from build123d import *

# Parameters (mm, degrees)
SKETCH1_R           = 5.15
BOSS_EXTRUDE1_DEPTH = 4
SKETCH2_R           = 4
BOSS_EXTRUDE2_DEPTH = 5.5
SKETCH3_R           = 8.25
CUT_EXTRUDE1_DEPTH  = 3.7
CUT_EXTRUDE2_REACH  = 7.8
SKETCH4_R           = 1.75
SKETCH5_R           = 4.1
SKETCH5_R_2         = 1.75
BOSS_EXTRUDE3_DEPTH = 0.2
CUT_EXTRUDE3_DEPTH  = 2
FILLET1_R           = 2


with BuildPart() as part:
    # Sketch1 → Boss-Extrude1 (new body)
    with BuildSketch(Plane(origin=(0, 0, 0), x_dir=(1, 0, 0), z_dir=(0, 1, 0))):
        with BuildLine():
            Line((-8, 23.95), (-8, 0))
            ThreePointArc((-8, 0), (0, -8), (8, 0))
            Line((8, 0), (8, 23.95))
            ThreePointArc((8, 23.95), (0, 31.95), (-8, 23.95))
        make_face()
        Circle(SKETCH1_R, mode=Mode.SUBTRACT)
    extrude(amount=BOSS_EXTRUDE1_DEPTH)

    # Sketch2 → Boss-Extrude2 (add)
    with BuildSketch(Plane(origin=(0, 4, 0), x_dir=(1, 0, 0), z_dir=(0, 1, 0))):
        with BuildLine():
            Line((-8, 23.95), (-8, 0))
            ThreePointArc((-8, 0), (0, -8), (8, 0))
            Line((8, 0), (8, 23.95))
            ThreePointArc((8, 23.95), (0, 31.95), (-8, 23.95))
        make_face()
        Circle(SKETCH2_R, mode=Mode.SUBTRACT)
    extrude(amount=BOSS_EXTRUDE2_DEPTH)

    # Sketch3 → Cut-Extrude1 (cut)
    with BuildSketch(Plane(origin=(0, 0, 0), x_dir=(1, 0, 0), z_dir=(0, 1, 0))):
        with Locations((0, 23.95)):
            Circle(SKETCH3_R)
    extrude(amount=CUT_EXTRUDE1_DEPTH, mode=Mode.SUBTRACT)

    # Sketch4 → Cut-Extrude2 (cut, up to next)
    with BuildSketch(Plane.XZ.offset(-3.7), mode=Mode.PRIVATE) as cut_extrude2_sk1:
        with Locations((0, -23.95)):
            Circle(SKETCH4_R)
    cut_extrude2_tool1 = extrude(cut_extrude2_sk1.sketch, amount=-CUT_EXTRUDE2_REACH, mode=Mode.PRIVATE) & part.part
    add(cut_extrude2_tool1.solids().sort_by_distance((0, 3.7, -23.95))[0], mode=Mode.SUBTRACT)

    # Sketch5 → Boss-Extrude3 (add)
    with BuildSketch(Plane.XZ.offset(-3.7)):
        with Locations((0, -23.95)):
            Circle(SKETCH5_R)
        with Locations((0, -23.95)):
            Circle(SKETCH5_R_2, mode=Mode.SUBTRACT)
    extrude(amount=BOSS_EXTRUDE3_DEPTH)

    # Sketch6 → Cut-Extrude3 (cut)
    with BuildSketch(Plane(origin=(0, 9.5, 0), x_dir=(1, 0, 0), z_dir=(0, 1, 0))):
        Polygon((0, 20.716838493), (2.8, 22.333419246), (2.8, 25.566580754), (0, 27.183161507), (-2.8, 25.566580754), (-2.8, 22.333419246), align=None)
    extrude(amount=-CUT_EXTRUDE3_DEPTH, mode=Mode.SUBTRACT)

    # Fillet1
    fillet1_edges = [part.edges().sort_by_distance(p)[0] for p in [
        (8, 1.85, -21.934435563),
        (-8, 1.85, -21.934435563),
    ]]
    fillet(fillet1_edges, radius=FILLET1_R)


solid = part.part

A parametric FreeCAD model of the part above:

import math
import FreeCAD as App
import Part
import Sketcher

V = App.Vector
Q = App.Units.Quantity


def edges_at(feature, points):
    """Names of the edges that pass closest to the given points."""
    edges = feature.Shape.Edges
    near = lambda p: min(range(len(edges)), key=lambda i: edges[i].distToShape(Part.Vertex(*p))[0])
    return sorted({f"Edge{near(p) + 1}" for p in points})


def add_polygon(sketch, points):
    """Adds a closed chain of lines whose ends are joined by coincident constraints."""
    first, n = sketch.GeometryCount, len(points)
    for a, b in zip(points, points[1:] + points[:1]):
        sketch.addGeometry(Part.LineSegment(App.Vector(*a, 0), App.Vector(*b, 0)), False)
    for i in range(n):
        sketch.addConstraint(Sketcher.Constraint("Coincident", first + i, 2, first + (i + 1) % n, 1))

doc = App.newDocument("Part")
body = doc.addObject("PartDesign::Body", "Body")

sketch1 = doc.addObject("Sketcher::SketchObject", "Sketch")
body.addObject(sketch1)
sketch1.AttachmentSupport = (doc.XZ_Plane, [""])
sketch1.MapMode = "FlatFace"
sketch1.addGeometry([
    Part.LineSegment(V(-8, -24, 0), V(-8, 0, 0)),
    Part.ArcOfCircle(Part.Circle(V(0, 0, 0), V(0, 0, 1), 8), math.radians(0), math.radians(180)),
    Part.LineSegment(V(8, 0, 0), V(8, -24, 0)),
    Part.ArcOfCircle(Part.Circle(V(0, -24, 0), V(0, 0, 1), 8), math.radians(180), math.radians(360)),
    Part.Circle(V(0, 0, 0), V(0, 0, 1), 5),
], False)
sketch1.addConstraint([
    Sketcher.Constraint("Tangent", 0, 2, 1, 2),
    Sketcher.Constraint("Tangent", 1, 1, 2, 1),
    Sketcher.Constraint("Tangent", 2, 2, 3, 2),
    Sketcher.Constraint("Tangent", 3, 1, 0, 1),
    Sketcher.Constraint("Vertical", 0),
    Sketcher.Constraint("Vertical", 2),
    Sketcher.Constraint("Coincident", 1, 3, -1, 1),
    Sketcher.Constraint("Coincident", 4, 3, -1, 1),
    Sketcher.Constraint("Radius", 1, 8.0),
    Sketcher.Constraint("Diameter", 4, 10.3),
    Sketcher.Constraint("DistanceY", 0, 1, 0, 2, 23.95),
])
pad1 = doc.addObject("PartDesign::Pad", "Pad")
body.addObject(pad1)
pad1.Profile = sketch1
pad1.Length = 4
pad1.Reversed = True

sketch2 = doc.addObject("Sketcher::SketchObject", "Sketch001")
body.addObject(sketch2)
sketch2.AttachmentSupport = (doc.XZ_Plane, [""])
sketch2.MapMode = "FlatFace"
sketch2.AttachmentOffset = App.Placement(V(0, 0, -4), App.Rotation())
sketch2.addGeometry([
    Part.LineSegment(V(-8, -23.9, 0), V(-8, 0, 0)),
    Part.ArcOfCircle(Part.Circle(V(0, 0, 0), V(0, 0, 1), 8), math.radians(0), math.radians(180)),
    Part.LineSegment(V(8, 0, 0), V(8, -23.9, 0)),
    Part.ArcOfCircle(Part.Circle(V(0, -23.9, 0), V(0, 0, 1), 8), math.radians(180), math.radians(360)),
    Part.Circle(V(0, 0, 0), V(0, 0, 1), 4),
], False)
sketch2.addConstraint([
    Sketcher.Constraint("Tangent", 0, 2, 1, 2),
    Sketcher.Constraint("Tangent", 1, 1, 2, 1),
    Sketcher.Constraint("Tangent", 2, 2, 3, 2),
    Sketcher.Constraint("Tangent", 3, 1, 0, 1),
    Sketcher.Constraint("Vertical", 0),
    Sketcher.Constraint("Vertical", 2),
    Sketcher.Constraint("Coincident", 1, 3, -1, 1),
    Sketcher.Constraint("Coincident", 4, 3, -1, 1),
    Sketcher.Constraint("Diameter", 4, 8.0),
    Sketcher.Constraint("Radius", 1, 8.0),
    Sketcher.Constraint("DistanceY", 0, 1, 0, 2, 23.95),
])
pad2 = doc.addObject("PartDesign::Pad", "Pad001")
body.addObject(pad2)
pad2.Profile = sketch2
pad2.Length = 5.5
pad2.Reversed = True

sketch3 = doc.addObject("Sketcher::SketchObject", "Sketch002")
body.addObject(sketch3)
sketch3.AttachmentSupport = (doc.XZ_Plane, [""])
sketch3.MapMode = "FlatFace"
sketch3.addGeometry(Part.Circle(V(0, -24, 0), V(0, 0, 1), 8), False)
sketch3.addConstraint([
    Sketcher.Constraint("PointOnObject", 0, 3, -2),
    Sketcher.Constraint("Diameter", 0, 16.5),
    Sketcher.Constraint("DistanceY", 0, 3, -1, 1, 23.95),
])
pocket1 = doc.addObject("PartDesign::Pocket", "Pocket")
body.addObject(pocket1)
pocket1.Profile = sketch3
pocket1.Length = 3.7

sketch4 = doc.addObject("Sketcher::SketchObject", "Sketch003")
body.addObject(sketch4)
sketch4.AttachmentSupport = (doc.XZ_Plane, [""])
sketch4.MapMode = "FlatFace"
sketch4.AttachmentOffset = App.Placement(V(0, 0, -3.7), App.Rotation())
sketch4.addGeometry(Part.Circle(V(0, -23.9, 0), V(0, 0, 1), 1.8), False)
sketch4.addConstraint([
    Sketcher.Constraint("PointOnObject", 0, 3, -2),
    Sketcher.Constraint("Diameter", 0, 3.5),
    Sketcher.Constraint("DistanceY", 0, 3, -1, 1, 23.95),
])
pocket2 = doc.addObject("PartDesign::Pocket", "Pocket001")
body.addObject(pocket2)
pocket2.Profile = sketch4
pocket2.Type = "UpToFirst"

sketch5 = doc.addObject("Sketcher::SketchObject", "Sketch004")
body.addObject(sketch5)
sketch5.AttachmentSupport = (doc.XZ_Plane, [""])
sketch5.MapMode = "FlatFace"
sketch5.AttachmentOffset = App.Placement(V(0, 0, -3.7), App.Rotation())
sketch5.addGeometry([
    Part.Circle(V(0, -23.9, 0), V(0, 0, 1), 4.1),
    Part.Circle(V(0, -23.9, 0), V(0, 0, 1), 1.8),
], False)
sketch5.addConstraint([
    Sketcher.Constraint("Coincident", 1, 3, 0, 3),
    Sketcher.Constraint("PointOnObject", 0, 3, -2),
    Sketcher.Constraint("Diameter", 0, 8.2),
    Sketcher.Constraint("Diameter", 1, 3.5),
    Sketcher.Constraint("DistanceY", 0, 3, -1, 1, 23.95),
])
pad3 = doc.addObject("PartDesign::Pad", "Pad002")
body.addObject(pad3)
pad3.Profile = sketch5
pad3.Length = 0.2

sketch6 = doc.addObject("Sketcher::SketchObject", "Sketch005")
body.addObject(sketch6)
sketch6.AttachmentSupport = (doc.XZ_Plane, [""])
sketch6.MapMode = "FlatFace"
sketch6.AttachmentOffset = App.Placement(V(0, 0, -9.5), App.Rotation())
add_polygon(sketch6, [(0, -20.7), (2.8, -22.3), (2.8, -25.6), (0, -27.2), (-2.8, -25.6), (-2.8, -22.3)])
sketch6.addConstraint([
    Sketcher.Constraint("Vertical", 1),
    Sketcher.Constraint("Vertical", 4),
    Sketcher.Constraint("Symmetric", 1, 2, 3, 2, -2),
    Sketcher.Constraint("PointOnObject", 2, 2, -2),
    Sketcher.Constraint("PointOnObject", 5, 2, -2),
    Sketcher.Constraint("Parallel", 0, 3),
    Sketcher.Constraint("Parallel", 2, 5),
    Sketcher.Constraint("Angle", 0, Q("-30 deg")),
    Sketcher.Constraint("DistanceX", -1, 1, 0, 2, 2.8),
    Sketcher.Constraint("DistanceY", 1, 2, 1, 1, 3.233162),
    Sketcher.Constraint("DistanceY", 0, 2, -1, 1, 22.333419),
])
pocket3 = doc.addObject("PartDesign::Pocket", "Pocket002")
body.addObject(pocket3)
pocket3.Profile = sketch6
pocket3.Length = 2
pocket3.Reversed = True
doc.recompute()

fillet = doc.addObject("PartDesign::Fillet", "Fillet")
body.addObject(fillet)
fillet.Base = (pocket3, edges_at(pocket3, [(8, 1.85, -21.934), (-8, 1.85, -21.934)]))
fillet.Radius = 2

doc.recompute()
